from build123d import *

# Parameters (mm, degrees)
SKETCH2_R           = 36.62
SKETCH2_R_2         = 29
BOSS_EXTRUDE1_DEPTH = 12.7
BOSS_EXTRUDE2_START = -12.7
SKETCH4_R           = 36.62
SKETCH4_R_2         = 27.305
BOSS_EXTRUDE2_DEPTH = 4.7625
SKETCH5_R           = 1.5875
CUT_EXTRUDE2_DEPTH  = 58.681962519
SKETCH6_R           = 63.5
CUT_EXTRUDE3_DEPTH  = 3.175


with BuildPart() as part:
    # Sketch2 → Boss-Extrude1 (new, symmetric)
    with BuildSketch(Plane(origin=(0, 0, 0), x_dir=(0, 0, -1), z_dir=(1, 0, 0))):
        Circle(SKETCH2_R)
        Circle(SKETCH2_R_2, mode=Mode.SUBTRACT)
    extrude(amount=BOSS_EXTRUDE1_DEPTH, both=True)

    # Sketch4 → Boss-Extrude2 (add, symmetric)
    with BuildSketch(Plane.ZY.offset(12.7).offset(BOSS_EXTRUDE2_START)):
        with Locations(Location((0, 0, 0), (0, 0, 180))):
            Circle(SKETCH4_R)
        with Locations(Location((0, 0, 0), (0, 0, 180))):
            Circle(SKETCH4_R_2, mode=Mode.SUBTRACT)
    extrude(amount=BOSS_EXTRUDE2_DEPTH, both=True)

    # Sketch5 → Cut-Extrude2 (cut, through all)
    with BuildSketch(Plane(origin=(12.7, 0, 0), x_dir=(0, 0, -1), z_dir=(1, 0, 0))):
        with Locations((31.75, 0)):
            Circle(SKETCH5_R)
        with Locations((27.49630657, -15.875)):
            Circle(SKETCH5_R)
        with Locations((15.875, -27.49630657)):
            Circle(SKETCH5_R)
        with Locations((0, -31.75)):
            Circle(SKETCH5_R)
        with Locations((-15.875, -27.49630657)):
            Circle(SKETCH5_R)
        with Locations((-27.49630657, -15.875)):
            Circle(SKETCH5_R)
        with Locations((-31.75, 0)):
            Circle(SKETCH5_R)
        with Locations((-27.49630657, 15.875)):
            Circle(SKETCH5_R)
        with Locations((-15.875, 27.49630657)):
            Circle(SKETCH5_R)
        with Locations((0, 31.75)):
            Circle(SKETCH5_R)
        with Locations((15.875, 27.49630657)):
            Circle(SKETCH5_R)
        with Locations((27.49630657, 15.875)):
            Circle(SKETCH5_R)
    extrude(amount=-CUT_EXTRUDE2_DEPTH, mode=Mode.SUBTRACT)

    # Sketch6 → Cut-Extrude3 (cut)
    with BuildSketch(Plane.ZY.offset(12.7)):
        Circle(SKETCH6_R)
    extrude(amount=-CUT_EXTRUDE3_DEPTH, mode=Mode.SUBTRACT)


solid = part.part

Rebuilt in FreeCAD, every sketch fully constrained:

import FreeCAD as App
import Part
import Sketcher

V = App.Vector
Q = App.Units.Quantity

doc = App.newDocument("Part")
params = doc.addObject("Spreadsheet::Sheet", "Params")
for row, (alias, value) in enumerate([
    ("pad1_length", "1 in"),
    ("sketch2_diameter", "2.15 in"),
    ("pad2_length", "0.375 in"),
    ("sketch3_diameter", "0.125 in"),
    ("sketch4_diameter", "5 in"),
    ("pocket2_length", "0.125 in"),
], start=1):
    params.set(f"A{row}", alias)
    params.set(f"B{row}", "=" + value)
    params.setAlias(f"B{row}", alias)

body = doc.addObject("PartDesign::Body", "Body")

# Sketch on YZ plane
sketch1 = body.newObject("Sketcher::SketchObject", "Sketch")
sketch1.AttachmentSupport = (doc.getObject("YZ_Plane"), [""])
sketch1.MapMode = "FlatFace"
sketch1.addGeometry([
    Part.Circle(V(0, 0, 0), V(0, 0, 1), 36.62),
    Part.Circle(V(0, 0, 0), V(0, 0, 1), 29),
], False)
sketch1.addConstraint([
    Sketcher.Constraint("Coincident", 0, 3, -1, 1),
    Sketcher.Constraint("Coincident", 1, 3, -1, 1),
    Sketcher.Constraint("Diameter", 0, 73.24),
    Sketcher.Constraint("Diameter", 1, 58.0),
])
pad1 = body.newObject("PartDesign::Pad", "Pad")
pad1.Profile = sketch1
pad1.setExpression("Length", "Params.pad1_length")
pad1.Midplane = True

# Sketch on YZ plane
sketch2 = body.newObject("Sketcher::SketchObject", "Sketch001")
sketch2.AttachmentSupport = (doc.getObject("YZ_Plane"), [""])
sketch2.MapMode = "FlatFace"
sketch2.addGeometry([
    Part.Circle(V(0, 0, 0), V(0, 0, 1), 36.62),
    Part.Circle(V(0, 0, 0), V(0, 0, 1), 27.305),
], False)
sketch2.addConstraint([
    Sketcher.Constraint("Coincident", 0, 3, -1, 1),
    Sketcher.Constraint("Coincident", 1, 3, -1, 1),
    Sketcher.Constraint("Diameter", 1, Q("2.15 in")),
    Sketcher.Constraint("Diameter", 0, 73.24),
])
sketch2.setExpression("Constraints[2]", "Params.sketch2_diameter")
pad2 = body.newObject("PartDesign::Pad", "Pad001")
pad2.Profile = sketch2
pad2.setExpression("Length", "Params.pad2_length")
pad2.Midplane = True

# Sketch on YZ plane
sketch3 = body.newObject("Sketcher::SketchObject", "Sketch002")
sketch3.AttachmentSupport = (doc.getObject("YZ_Plane"), [""])
sketch3.MapMode = "FlatFace"
sketch3.AttachmentOffset = App.Placement(V(0, 0, 0.5 * 25.4), App.Rotation())
sketch3.addGeometry([
    Part.Circle(V(0, -31.75, 0), V(0, 0, 1), 1.5875),  # 0
    Part.Circle(V(-15.875, -27.496307, 0), V(0, 0, 1), 1.5875),  # 1
    Part.Circle(V(-27.496307, -15.875, 0), V(0, 0, 1), 1.5875),  # 2
    Part.Circle(V(-31.75, 0, 0), V(0, 0, 1), 1.5875),  # 3
    Part.Circle(V(-27.496307, 15.875, 0), V(0, 0, 1), 1.5875),  # 4
    Part.Circle(V(-15.875, 27.496307, 0), V(0, 0, 1), 1.5875),  # 5
    Part.Circle(V(0, 31.75, 0), V(0, 0, 1), 1.5875),  # 6
    Part.Circle(V(15.875, 27.496307, 0), V(0, 0, 1), 1.5875),  # 7
    Part.Circle(V(27.496307, 15.875, 0), V(0, 0, 1), 1.5875),  # 8
    Part.Circle(V(31.75, 0, 0), V(0, 0, 1), 1.5875),  # 9
    Part.Circle(V(27.496307, -15.875, 0), V(0, 0, 1), 1.5875),  # 10
    Part.Circle(V(15.875, -27.496307, 0), V(0, 0, 1), 1.5875),  # 11
], False)
sketch3.addConstraint([
    Sketcher.Constraint("Equal", 0, 1),
    Sketcher.Constraint("Equal", 1, 2),
    Sketcher.Constraint("Equal", 2, 3),
    Sketcher.Constraint("Equal", 3, 4),
    Sketcher.Constraint("Equal", 4, 5),
    Sketcher.Constraint("Equal", 5, 6),
    Sketcher.Constraint("Equal", 6, 7),
    Sketcher.Constraint("Equal", 7, 8),
    Sketcher.Constraint("Equal", 8, 9),
    Sketcher.Constraint("Equal", 9, 10),
    Sketcher.Constraint("Equal", 10, 11),
    Sketcher.Constraint("Symmetric", 0, 3, 6, 3, -1, 1),
    Sketcher.Constraint("Symmetric", 1, 3, 7, 3, -1, 1),
    Sketcher.Constraint("Symmetric", 2, 3, 8, 3, -1, 1),
    Sketcher.Constraint("Symmetric", 3, 3, 9, 3, -1, 1),
    Sketcher.Constraint("Symmetric", 4, 3, 10, 3, -1, 1),
    Sketcher.Constraint("Symmetric", 5, 3, 11, 3, -1, 1),
    Sketcher.Constraint("Symmetric", 5, 3, 7, 3, -2),
    Sketcher.Constraint("Symmetric", 4, 3, 8, 3, -2),
    Sketcher.Constraint("PointOnObject", 0, 3, -2),
    Sketcher.Constraint("PointOnObject", 3, 3, -1),
    Sketcher.Constraint("Diameter", 0, Q("0.125 in")),
    Sketcher.Constraint("DistanceY", 0, 3, -1, 1, Q("1.25 in")),
    Sketcher.Constraint("DistanceX", 3, 3, -1, 1, Q("1.25 in")),
    Sketcher.Constraint("DistanceY", 2, 3, 4, 3, Q("1.25 in")),
    Sketcher.Constraint("DistanceX", 5, 3, 7, 3, Q("1.25 in")),
    Sketcher.Constraint("DistanceY", 1, 3, -1, 1, 27.496307),
    Sketcher.Constraint("DistanceX", 2, 3, -1, 1, 27.496307),
])
sketch3.setExpression("Constraints[21]", "Params.sketch3_diameter")
pocket1 = body.newObject("PartDesign::Pocket", "Pocket")
pocket1.Profile = sketch3
pocket1.Type = "ThroughAll"

# Sketch on YZ plane
sketch4 = body.newObject("Sketcher::SketchObject", "Sketch003")
sketch4.AttachmentSupport = (doc.getObject("YZ_Plane"), [""])
sketch4.MapMode = "FlatFace"
sketch4.AttachmentOffset = App.Placement(V(0, 0, -0.5 * 25.4), App.Rotation())
sketch4.addGeometry(Part.Circle(V(0, 0, 0), V(0, 0, 1), 63.5), False)
sketch4.addConstraint([
    Sketcher.Constraint("Coincident", 0, 3, -1, 1),
    Sketcher.Constraint("Diameter", 0, Q("5 in")),
])
sketch4.setExpression("Constraints[1]", "Params.sketch4_diameter")
pocket2 = body.newObject("PartDesign::Pocket", "Pocket001")
pocket2.Profile = sketch4
pocket2.setExpression("Length", "Params.pocket2_length")
pocket2.Reversed = True

doc.recompute()
